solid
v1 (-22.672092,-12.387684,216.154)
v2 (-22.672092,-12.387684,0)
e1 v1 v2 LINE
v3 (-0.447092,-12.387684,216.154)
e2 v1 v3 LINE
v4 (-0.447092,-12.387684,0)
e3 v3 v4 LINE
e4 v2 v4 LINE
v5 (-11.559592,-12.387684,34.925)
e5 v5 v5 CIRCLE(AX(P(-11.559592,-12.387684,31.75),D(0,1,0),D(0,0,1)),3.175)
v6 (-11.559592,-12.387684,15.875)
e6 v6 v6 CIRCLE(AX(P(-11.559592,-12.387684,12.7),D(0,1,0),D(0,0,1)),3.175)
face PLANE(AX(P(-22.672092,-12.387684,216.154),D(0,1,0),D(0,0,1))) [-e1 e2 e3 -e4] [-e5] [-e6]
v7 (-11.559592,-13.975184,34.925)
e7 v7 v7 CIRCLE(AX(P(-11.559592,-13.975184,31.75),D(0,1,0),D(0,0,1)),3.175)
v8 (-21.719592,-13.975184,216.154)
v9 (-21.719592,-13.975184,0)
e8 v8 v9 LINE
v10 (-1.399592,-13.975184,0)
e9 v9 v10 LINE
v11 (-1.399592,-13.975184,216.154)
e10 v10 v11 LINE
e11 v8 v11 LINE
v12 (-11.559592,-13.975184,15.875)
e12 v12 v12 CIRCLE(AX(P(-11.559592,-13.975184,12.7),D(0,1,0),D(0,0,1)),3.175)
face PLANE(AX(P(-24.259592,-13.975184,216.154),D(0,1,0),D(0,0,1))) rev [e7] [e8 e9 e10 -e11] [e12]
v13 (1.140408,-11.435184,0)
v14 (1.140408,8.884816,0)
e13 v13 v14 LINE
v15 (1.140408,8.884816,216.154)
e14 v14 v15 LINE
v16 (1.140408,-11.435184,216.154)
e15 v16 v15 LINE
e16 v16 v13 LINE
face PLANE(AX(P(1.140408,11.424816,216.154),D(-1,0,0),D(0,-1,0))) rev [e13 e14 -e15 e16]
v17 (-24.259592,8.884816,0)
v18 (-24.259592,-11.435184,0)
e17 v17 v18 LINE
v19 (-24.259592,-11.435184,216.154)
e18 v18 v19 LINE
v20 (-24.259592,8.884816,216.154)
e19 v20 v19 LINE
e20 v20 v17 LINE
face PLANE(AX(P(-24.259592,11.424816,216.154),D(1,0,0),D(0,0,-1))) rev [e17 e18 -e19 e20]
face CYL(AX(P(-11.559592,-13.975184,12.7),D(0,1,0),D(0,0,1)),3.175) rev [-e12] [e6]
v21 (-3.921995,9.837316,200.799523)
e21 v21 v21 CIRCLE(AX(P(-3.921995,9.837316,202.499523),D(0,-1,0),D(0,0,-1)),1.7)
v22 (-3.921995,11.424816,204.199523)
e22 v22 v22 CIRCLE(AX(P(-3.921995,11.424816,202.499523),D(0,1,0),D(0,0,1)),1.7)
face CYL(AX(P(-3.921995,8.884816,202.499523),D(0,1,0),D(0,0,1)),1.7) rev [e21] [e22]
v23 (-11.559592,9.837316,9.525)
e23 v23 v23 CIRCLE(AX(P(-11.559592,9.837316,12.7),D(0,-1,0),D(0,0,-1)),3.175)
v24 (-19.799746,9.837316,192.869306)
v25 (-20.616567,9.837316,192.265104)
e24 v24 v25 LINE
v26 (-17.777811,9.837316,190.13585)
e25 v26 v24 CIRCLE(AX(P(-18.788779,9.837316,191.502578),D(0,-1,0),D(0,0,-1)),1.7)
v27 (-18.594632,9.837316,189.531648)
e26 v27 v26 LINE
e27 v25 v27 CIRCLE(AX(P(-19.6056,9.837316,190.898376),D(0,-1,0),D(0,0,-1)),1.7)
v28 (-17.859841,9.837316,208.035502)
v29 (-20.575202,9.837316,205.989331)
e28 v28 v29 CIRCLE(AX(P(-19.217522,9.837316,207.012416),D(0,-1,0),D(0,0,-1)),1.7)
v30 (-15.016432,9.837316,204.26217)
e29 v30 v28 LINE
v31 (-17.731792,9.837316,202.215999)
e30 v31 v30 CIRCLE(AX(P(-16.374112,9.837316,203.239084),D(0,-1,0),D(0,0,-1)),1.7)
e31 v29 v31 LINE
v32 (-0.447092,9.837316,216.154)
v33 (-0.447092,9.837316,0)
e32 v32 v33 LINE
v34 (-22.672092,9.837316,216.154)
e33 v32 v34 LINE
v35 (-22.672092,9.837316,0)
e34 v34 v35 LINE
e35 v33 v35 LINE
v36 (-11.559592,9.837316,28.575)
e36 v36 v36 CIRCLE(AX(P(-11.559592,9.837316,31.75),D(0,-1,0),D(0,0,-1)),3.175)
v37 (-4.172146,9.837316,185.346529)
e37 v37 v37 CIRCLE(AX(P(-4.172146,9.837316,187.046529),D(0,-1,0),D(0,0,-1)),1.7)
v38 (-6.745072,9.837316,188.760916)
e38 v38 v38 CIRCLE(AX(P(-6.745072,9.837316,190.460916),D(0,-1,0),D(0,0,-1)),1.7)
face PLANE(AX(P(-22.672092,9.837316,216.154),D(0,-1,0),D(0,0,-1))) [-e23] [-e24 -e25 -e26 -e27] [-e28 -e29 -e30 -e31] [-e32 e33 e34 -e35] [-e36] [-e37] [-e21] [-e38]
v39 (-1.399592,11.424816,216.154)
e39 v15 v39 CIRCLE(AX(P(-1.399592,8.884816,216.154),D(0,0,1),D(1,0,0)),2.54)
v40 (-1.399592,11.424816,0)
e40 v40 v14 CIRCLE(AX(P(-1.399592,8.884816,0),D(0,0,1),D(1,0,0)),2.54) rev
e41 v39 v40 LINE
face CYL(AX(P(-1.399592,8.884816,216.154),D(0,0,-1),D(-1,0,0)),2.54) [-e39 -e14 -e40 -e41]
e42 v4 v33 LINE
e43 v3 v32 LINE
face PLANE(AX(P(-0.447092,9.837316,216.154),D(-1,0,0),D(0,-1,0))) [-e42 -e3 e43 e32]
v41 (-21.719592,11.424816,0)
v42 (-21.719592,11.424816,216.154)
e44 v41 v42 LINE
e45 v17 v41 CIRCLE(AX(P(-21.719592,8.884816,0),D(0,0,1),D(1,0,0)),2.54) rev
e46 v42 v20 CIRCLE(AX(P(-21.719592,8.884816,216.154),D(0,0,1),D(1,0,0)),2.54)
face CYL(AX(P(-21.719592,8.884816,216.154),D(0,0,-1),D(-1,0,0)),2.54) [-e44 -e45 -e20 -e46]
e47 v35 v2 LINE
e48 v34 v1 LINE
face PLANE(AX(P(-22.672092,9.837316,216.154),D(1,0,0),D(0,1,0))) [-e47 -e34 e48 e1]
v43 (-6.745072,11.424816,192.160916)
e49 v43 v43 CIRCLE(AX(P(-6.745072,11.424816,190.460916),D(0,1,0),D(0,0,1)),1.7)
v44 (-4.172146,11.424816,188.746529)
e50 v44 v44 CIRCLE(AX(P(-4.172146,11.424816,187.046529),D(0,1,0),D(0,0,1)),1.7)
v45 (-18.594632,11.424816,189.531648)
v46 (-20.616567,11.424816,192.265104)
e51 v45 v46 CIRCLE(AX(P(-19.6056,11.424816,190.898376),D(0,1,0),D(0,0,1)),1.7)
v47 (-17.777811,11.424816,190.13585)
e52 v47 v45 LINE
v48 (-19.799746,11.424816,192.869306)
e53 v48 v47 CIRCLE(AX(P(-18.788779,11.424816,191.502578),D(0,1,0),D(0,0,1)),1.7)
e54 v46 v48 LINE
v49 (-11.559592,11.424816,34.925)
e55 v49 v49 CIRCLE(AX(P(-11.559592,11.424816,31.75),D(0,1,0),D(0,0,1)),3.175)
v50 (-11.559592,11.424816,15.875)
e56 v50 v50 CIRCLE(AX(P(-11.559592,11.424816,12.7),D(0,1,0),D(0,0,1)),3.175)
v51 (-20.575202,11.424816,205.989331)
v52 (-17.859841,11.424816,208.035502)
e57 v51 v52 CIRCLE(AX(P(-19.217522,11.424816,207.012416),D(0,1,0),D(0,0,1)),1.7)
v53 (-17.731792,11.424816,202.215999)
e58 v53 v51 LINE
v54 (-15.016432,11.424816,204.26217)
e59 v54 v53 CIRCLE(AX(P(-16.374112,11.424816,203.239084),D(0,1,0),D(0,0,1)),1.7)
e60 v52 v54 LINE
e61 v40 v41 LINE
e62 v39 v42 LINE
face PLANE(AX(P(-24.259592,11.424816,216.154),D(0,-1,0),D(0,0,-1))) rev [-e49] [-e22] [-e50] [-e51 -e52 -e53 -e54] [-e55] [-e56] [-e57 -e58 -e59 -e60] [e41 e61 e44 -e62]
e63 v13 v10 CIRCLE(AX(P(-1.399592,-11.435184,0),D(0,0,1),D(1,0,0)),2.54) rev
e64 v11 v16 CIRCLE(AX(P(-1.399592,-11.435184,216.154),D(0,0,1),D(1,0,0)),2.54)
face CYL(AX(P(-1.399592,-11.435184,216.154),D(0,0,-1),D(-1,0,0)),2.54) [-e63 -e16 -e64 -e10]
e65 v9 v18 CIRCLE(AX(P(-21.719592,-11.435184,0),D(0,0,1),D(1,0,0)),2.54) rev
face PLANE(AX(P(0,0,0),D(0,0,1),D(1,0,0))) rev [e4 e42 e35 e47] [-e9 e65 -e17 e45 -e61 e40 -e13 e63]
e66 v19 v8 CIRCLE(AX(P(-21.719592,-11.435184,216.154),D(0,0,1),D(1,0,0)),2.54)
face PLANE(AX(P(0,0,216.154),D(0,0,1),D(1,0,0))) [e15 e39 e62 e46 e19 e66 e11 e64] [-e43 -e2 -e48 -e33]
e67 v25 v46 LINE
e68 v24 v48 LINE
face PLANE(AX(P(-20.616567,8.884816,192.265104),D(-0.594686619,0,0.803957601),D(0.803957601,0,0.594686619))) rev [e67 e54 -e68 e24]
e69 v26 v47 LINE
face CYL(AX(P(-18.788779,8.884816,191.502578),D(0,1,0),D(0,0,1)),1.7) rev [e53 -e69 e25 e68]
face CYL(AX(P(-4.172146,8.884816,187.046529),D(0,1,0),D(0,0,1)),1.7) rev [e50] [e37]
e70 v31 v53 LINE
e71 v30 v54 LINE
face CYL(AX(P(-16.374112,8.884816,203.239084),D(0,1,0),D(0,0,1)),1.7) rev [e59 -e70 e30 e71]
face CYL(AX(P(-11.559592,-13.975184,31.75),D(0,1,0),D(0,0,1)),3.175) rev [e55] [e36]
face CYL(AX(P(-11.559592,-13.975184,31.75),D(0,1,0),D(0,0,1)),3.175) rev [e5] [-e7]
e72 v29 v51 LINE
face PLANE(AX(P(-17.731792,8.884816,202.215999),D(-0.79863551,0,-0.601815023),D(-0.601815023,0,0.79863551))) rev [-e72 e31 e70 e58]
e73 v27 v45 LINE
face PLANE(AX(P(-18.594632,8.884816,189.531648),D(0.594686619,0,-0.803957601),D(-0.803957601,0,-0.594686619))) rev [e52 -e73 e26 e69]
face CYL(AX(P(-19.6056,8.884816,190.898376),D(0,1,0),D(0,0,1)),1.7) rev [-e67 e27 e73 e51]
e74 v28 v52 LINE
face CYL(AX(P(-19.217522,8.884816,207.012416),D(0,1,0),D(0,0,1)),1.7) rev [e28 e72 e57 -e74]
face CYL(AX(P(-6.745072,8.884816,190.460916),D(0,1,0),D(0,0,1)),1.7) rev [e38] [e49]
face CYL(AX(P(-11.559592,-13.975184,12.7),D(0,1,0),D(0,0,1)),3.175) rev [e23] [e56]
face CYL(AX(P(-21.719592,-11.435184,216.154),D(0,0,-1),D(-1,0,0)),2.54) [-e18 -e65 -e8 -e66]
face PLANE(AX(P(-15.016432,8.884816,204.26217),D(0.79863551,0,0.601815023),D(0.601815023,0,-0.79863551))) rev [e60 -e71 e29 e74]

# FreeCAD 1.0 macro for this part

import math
import FreeCAD as App
import Part
import Sketcher
Q = App.Units.Quantity


def edges_at(feature, points):
    """Names of the edges that pass closest to the given points."""
    edges = feature.Shape.Edges
    near = lambda p: min(range(len(edges)), key=lambda i: edges[i].distToShape(Part.Vertex(*p))[0])
    return sorted({f"Edge{near(p) + 1}" for p in points})

doc = App.newDocument("Part")
body = doc.addObject("PartDesign::Body", "Body")

sketch1 = body.newObject("Sketcher::SketchObject", "Sketch")
sketch1.AttachmentSupport = (doc.getObject("XY_Plane"), [""])
sketch1.MapMode = "FlatFace"
sketch1.addGeometry([
    Part.LineSegment(App.Vector(-24, 11, 0), App.Vector(-24, -14, 0)),
    Part.LineSegment(App.Vector(-24, -14, 0), App.Vector(1, -14, 0)),
    Part.LineSegment(App.Vector(1, -14, 0), App.Vector(1, 11, 0)),
    Part.LineSegment(App.Vector(1, 11, 0), App.Vector(-24, 11, 0)),
    Part.LineSegment(App.Vector(0, -12, 0), App.Vector(-23, -12, 0)),
    Part.LineSegment(App.Vector(-23, -12, 0), App.Vector(-23, 10, 0)),
    Part.LineSegment(App.Vector(-23, 10, 0), App.Vector(0, 10, 0)),
    Part.LineSegment(App.Vector(0, 10, 0), App.Vector(0, -12, 0)),
], False)
sketch1.addConstraint([
    Sketcher.Constraint("Coincident", 0, 2, 1, 1),
    Sketcher.Constraint("Coincident", 1, 2, 2, 1),
    Sketcher.Constraint("Coincident", 2, 2, 3, 1),
    Sketcher.Constraint("Coincident", 3, 2, 0, 1),
    Sketcher.Constraint("Coincident", 4, 2, 5, 1),
    Sketcher.Constraint("Coincident", 5, 2, 6, 1),
    Sketcher.Constraint("Coincident", 6, 2, 7, 1),
    Sketcher.Constraint("Coincident", 7, 2, 4, 1),
    Sketcher.Constraint("Vertical", 0),
    Sketcher.Constraint("Horizontal", 1),
    Sketcher.Constraint("Vertical", 2),
    Sketcher.Constraint("Horizontal", 3),
    Sketcher.Constraint("Horizontal", 4),
    Sketcher.Constraint("Vertical", 5),
    Sketcher.Constraint("Horizontal", 6),
    Sketcher.Constraint("Vertical", 7),
    Sketcher.Constraint("Equal", 3, 0),
    Sketcher.Constraint("Equal", 6, 5),
    Sketcher.Constraint("DistanceX", 1, 1, 1, 2, Q("1 in")),
    Sketcher.Constraint("DistanceX", 4, 2, 4, 1, Q("0.875 in")),
    Sketcher.Constraint("DistanceX", 0, 2, 4, 2, Q("0.0625 in")),
    Sketcher.Constraint("DistanceY", 0, 2, 4, 2, Q("0.0625 in")),
    Sketcher.Constraint("DistanceX", 0, 2, -1, 1, Q("24.259592 mm")),
    Sketcher.Constraint("DistanceY", 0, 2, -1, 1, Q("13.975184 mm")),
])
pad1 = body.newObject("PartDesign::Pad", "Pad")
pad1.Profile = sketch1
pad1.Length = Q("8.51 in")
doc.recompute()

fillet = body.newObject("PartDesign::Fillet", "Fillet")
fillet.Base = (pad1, edges_at(pad1, [
    (-24.26, 11.425, 108.077),
    (1.14, 11.425, 108.077),
    (1.14, -13.975, 108.077),
    (-24.26, -13.975, 108.077),
]))
fillet.Radius = Q("0.1 in")

sketch2 = body.newObject("Sketcher::SketchObject", "Sketch001")
sketch2.AttachmentSupport = (doc.getObject("XZ_Plane"), [""])
sketch2.MapMode = "FlatFace"
sketch2.AttachmentOffset = App.Placement(App.Vector(0, 0, -11.424816), App.Rotation())
sketch2.addGeometry([
    Part.Circle(App.Vector(-11.6, 12.7, 0), App.Vector(0, 0, 1), 3.2),
    Part.Circle(App.Vector(-11.6, 31.8, 0), App.Vector(0, 0, 1), 3.2),
], False)
sketch2.addConstraint([
    Sketcher.Constraint("Equal", 0, 1),
    Sketcher.Constraint("Vertical", 0, 3, 1, 3),
    Sketcher.Constraint("Diameter", 0, Q("0.25 in")),
    Sketcher.Constraint("DistanceY", -1, 1, 0, 3, Q("0.5 in")),
    Sketcher.Constraint("DistanceY", -1, 1, 1, 3, Q("1.25 in")),
    Sketcher.Constraint("DistanceX", 0, 3, -1, 1, Q("11.559592 mm")),
])
pocket1 = body.newObject("PartDesign::Pocket", "Pocket")
pocket1.Profile = sketch2
pocket1.Type = "ThroughAll"
pocket1.Reversed = True

sketch3 = body.newObject("Sketcher::SketchObject", "Sketch002")
sketch3.AttachmentSupport = (doc.getObject("XZ_Plane"), [""])
sketch3.MapMode = "FlatFace"
sketch3.AttachmentOffset = App.Placement(App.Vector(0, 0, -11.424816), App.Rotation())
sketch3.addGeometry([
    Part.Circle(App.Vector(-6.7, 190.5, 0), App.Vector(0, 0, 1), 1.7),
    Part.Circle(App.Vector(-4.2, 187, 0), App.Vector(0, 0, 1), 1.7),
    Part.Circle(App.Vector(-3.9, 202.5, 0), App.Vector(0, 0, 1), 1.7),
    Part.LineSegment(App.Vector(-17.9, 208, 0), App.Vector(-15, 204.3, 0)),
    Part.ArcOfCircle(Part.Circle(App.Vector(-16.4, 203.2, 0), App.Vector(0, 0, 1), 1.7), math.radians(-143), math.radians(37)),
    Part.LineSegment(App.Vector(-17.7, 202.2, 0), App.Vector(-20.6, 206, 0)),
    Part.ArcOfCircle(Part.Circle(App.Vector(-19.2, 207, 0), App.Vector(0, 0, 1), 1.7), math.radians(37), math.radians(217)),
    Part.LineSegment(App.Vector(-17.8, 190.1, 0), App.Vector(-18.6, 189.5, 0)),
    Part.ArcOfCircle(Part.Circle(App.Vector(-19.6, 190.9, 0), App.Vector(0, 0, 1), 1.7), math.radians(126), math.radians(306)),
    Part.LineSegment(App.Vector(-20.6, 192.3, 0), App.Vector(-19.8, 192.9, 0)),
    Part.ArcOfCircle(Part.Circle(App.Vector(-18.8, 191.5, 0), App.Vector(0, 0, 1), 1.7), math.radians(-54), math.radians(126)),
], False)
sketch3.addConstraint([
    Sketcher.Constraint("Tangent", 3, 2, 4, 2),
    Sketcher.Constraint("Tangent", 4, 1, 5, 1),
    Sketcher.Constraint("Tangent", 5, 2, 6, 2),
    Sketcher.Constraint("Tangent", 6, 1, 3, 1),
    Sketcher.Constraint("Tangent", 7, 2, 8, 2),
    Sketcher.Constraint("Tangent", 8, 1, 9, 1),
    Sketcher.Constraint("Tangent", 9, 2, 10, 2),
    Sketcher.Constraint("Tangent", 10, 1, 7, 1),
    Sketcher.Constraint("Equal", 0, 1),
    Sketcher.Constraint("Equal", 1, 2),
    Sketcher.Constraint("Equal", 2, 4),
    Sketcher.Constraint("Equal", 4, 6),
    Sketcher.Constraint("Equal", 6, 8),
    Sketcher.Constraint("Equal", 8, 10),
    Sketcher.Constraint("Angle", 3, Q("-53 deg")),
    Sketcher.Constraint("Distance", 7, Q("0.04 in")),
    Sketcher.Constraint("Diameter", 0, Q("3.4 mm")),
    Sketcher.Constraint("DistanceX", 8, 3, -1, 1, Q("19.6056 mm")),
    Sketcher.Constraint("DistanceY", -1, 1, 4, 1, Q("202.215999 mm")),
    Sketcher.Constraint("DistanceY", -1, 1, 6, 1, Q("208.035502 mm")),
    Sketcher.Constraint("DistanceY", 0, 3, 6, 3, Q("16.5515 mm")),
    Sketcher.Constraint("DistanceY", 8, 3, 10, 3, Q("0.604202 mm")),
    Sketcher.Constraint("DistanceX", 0, 3, -1, 1, Q("6.745072 mm")),
    Sketcher.Constraint("DistanceY", -1, 1, 1, 3, Q("187.046529 mm")),
    Sketcher.Constraint("DistanceX", 6, 3, -1, 1, Q("19.217522 mm")),
    Sketcher.Constraint("DistanceY", -1, 1, 7, 2, Q("189.531648 mm")),
    Sketcher.Constraint("DistanceX", 1, 3, 2, 3, Q("0.250152 mm")),
    Sketcher.Constraint("DistanceY", 2, 3, 4, 3, Q("0.739561 mm")),
    Sketcher.Constraint("DistanceX", 1, 3, -1, 1, Q("4.172146 mm")),
])
pocket2 = body.newObject("PartDesign::Pocket", "Pocket001")
pocket2.Profile = sketch3
pocket2.Length = Q("0.1 in")
pocket2.Reversed = True

doc.recompute()
